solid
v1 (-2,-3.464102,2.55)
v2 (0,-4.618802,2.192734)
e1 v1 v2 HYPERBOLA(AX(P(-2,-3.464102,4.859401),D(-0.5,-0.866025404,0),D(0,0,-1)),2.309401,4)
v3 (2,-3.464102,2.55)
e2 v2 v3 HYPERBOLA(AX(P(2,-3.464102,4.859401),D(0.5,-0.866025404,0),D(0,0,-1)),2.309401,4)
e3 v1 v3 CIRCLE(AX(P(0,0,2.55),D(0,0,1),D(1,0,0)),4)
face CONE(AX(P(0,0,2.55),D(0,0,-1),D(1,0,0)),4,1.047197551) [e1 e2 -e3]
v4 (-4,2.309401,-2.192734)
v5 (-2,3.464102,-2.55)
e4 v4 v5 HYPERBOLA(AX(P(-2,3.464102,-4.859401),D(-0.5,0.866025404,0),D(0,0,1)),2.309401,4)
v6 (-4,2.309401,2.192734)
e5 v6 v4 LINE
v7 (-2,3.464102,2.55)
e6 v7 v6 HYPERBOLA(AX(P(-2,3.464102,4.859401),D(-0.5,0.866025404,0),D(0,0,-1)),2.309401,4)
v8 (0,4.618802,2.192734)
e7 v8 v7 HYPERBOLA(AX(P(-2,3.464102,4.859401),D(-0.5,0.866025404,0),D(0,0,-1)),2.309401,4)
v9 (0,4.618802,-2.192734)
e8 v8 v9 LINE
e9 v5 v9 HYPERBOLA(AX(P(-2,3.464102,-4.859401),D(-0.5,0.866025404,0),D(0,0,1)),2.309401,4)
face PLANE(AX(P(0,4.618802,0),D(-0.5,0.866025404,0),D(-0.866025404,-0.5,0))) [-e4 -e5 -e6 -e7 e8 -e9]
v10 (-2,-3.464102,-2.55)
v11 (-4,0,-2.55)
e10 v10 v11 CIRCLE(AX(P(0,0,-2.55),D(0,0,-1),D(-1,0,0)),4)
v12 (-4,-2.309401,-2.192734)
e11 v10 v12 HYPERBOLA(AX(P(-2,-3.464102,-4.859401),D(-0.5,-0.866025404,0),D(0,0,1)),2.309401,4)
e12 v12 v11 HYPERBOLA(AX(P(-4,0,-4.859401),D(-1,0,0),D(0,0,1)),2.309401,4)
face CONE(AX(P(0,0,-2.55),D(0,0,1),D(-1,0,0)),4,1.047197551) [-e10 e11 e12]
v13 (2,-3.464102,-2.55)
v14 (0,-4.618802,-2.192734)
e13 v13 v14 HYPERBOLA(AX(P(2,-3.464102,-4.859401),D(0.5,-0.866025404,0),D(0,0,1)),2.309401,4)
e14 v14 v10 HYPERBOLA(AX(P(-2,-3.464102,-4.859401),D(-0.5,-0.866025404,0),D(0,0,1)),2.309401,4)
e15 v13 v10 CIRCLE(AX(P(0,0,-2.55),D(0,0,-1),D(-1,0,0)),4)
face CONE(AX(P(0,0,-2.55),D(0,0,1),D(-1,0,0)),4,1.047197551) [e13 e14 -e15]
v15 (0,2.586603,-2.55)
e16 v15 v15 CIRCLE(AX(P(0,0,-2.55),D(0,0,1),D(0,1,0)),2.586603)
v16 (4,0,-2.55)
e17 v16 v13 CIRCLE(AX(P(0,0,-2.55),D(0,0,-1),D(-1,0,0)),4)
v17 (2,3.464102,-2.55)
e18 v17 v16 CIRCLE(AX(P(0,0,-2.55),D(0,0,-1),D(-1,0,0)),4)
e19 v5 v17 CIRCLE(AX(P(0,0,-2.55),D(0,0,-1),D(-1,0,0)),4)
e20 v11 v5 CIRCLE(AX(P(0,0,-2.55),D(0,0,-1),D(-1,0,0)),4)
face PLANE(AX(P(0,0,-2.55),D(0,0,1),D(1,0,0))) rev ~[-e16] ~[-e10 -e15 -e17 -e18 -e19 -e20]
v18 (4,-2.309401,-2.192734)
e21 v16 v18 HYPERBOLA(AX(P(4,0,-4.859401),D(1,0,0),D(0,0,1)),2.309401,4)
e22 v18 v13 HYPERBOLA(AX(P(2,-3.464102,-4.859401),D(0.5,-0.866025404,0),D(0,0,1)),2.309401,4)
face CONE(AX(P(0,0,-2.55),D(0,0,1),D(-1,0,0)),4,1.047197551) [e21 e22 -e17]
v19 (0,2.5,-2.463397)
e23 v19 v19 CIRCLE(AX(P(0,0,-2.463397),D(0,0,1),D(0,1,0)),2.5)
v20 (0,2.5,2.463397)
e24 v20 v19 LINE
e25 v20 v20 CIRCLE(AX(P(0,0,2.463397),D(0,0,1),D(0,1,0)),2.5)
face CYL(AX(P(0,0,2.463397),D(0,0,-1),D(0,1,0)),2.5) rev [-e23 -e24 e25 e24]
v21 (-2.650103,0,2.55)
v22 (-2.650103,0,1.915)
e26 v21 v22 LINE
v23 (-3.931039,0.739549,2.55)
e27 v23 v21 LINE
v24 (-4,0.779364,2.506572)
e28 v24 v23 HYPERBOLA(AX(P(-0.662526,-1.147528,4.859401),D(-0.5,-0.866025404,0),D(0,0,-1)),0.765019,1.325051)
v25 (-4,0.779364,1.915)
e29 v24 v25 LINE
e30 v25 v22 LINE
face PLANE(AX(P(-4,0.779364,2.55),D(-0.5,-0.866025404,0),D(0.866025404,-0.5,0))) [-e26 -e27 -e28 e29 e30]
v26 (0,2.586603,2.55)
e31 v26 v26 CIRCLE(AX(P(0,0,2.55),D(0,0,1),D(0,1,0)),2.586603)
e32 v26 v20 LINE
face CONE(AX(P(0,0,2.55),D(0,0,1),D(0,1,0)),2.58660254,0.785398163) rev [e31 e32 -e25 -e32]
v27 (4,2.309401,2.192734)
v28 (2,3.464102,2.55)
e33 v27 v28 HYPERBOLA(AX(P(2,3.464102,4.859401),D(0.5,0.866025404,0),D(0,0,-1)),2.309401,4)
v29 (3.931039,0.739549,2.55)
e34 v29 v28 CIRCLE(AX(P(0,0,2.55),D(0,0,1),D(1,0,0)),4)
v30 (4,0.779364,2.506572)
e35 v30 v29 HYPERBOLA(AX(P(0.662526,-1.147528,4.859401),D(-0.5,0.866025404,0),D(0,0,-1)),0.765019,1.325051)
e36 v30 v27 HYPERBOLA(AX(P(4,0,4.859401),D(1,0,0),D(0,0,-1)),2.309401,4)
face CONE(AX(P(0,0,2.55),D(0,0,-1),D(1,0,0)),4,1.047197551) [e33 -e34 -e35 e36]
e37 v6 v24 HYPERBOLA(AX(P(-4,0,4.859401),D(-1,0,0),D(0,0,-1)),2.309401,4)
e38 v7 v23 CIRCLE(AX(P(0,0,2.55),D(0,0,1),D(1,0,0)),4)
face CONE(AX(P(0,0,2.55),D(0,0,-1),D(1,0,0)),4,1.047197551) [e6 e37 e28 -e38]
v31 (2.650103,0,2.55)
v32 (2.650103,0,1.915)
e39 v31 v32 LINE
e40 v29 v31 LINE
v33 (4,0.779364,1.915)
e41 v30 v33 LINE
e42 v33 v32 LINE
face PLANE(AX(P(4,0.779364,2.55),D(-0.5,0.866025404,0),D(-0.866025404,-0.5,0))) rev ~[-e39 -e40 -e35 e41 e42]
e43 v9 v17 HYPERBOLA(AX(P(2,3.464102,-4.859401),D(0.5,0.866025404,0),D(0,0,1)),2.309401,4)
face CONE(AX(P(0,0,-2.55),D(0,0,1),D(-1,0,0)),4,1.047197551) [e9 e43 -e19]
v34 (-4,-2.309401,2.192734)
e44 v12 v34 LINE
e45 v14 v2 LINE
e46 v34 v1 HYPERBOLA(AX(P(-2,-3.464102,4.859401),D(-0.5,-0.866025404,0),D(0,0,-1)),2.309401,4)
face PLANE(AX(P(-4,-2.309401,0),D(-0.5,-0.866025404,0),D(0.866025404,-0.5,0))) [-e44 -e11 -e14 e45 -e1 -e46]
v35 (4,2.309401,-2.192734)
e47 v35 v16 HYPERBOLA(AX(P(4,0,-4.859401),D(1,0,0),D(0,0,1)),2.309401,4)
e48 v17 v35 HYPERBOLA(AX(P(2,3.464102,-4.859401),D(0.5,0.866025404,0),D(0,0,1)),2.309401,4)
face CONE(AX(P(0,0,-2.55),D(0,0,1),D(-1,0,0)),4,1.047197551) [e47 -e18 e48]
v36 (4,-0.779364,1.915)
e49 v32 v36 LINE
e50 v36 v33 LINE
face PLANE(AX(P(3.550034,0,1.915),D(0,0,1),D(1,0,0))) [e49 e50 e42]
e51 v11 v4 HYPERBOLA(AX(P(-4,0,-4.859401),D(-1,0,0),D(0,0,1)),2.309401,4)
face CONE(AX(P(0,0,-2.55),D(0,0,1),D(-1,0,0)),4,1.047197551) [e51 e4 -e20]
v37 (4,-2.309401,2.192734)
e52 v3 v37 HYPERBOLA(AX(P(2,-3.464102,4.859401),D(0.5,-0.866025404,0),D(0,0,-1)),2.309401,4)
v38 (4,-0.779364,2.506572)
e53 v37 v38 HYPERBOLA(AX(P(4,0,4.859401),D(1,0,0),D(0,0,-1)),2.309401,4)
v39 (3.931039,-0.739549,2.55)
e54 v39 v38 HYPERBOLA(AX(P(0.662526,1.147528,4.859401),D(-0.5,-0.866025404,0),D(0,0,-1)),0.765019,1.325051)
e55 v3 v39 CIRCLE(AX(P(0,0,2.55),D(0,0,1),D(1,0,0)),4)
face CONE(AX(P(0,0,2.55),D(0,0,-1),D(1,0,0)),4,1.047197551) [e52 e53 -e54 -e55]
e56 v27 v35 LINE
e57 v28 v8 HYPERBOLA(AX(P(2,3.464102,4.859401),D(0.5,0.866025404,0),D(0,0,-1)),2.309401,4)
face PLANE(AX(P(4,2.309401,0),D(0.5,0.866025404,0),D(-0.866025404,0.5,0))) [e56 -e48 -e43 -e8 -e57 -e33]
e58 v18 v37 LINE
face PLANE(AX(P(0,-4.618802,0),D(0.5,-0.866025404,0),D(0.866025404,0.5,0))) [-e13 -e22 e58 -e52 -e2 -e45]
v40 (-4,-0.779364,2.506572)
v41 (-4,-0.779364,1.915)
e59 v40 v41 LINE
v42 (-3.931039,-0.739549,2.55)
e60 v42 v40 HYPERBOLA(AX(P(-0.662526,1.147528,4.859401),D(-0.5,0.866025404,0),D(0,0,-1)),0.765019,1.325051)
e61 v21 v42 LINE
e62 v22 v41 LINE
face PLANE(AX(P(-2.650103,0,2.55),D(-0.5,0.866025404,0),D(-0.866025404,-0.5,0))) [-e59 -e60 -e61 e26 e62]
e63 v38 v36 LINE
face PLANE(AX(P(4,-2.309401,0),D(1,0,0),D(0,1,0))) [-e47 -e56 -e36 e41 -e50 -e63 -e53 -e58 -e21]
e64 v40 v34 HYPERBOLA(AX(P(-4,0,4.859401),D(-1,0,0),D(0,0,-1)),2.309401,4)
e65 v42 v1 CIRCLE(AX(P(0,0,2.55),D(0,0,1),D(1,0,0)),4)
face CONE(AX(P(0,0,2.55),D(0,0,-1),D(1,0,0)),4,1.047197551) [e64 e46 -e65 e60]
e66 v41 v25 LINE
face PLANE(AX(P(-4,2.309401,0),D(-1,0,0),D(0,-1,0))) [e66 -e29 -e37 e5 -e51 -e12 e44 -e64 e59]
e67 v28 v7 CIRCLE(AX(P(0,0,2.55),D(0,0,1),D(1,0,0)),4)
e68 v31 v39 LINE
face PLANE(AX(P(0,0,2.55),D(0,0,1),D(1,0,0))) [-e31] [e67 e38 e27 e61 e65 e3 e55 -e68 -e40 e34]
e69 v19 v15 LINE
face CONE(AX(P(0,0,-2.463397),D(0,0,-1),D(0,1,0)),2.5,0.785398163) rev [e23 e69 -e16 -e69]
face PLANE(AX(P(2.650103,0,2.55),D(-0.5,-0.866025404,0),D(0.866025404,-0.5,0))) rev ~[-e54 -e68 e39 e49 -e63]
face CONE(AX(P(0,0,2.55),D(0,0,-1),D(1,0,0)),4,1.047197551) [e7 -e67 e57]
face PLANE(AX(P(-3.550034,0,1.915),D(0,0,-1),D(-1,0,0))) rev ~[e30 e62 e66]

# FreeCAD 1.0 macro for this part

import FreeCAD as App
import Part
import Sketcher
from FreeCAD import Vector
Q = App.Units.Quantity


def faces_at(feature, points):
    """Names of the faces that lie closest to the given points."""
    faces = feature.Shape.Faces
    near = lambda p: min(range(len(faces)), key=lambda i: faces[i].distToShape(Part.Vertex(*p))[0])
    return sorted({f"Face{near(p) + 1}" for p in points})

doc = App.newDocument("Part")
body = doc.addObject("PartDesign::Body", "Body")

sketch1 = doc.addObject("Sketcher::SketchObject", "Sketch")
body.addObject(sketch1)
sketch1.AttachmentSupport = (doc.XY_Plane, [""])
sketch1.MapMode = "FlatFace"
sketch1.addGeometry([
    Part.LineSegment(Vector(-4, 2.309401, 0), Vector(-4, -2.309401, 0)),
    Part.LineSegment(Vector(-4, -2.309401, 0), Vector(0, -4.618802, 0)),
    Part.LineSegment(Vector(0, -4.618802, 0), Vector(4, -2.309401, 0)),
    Part.LineSegment(Vector(4, -2.309401, 0), Vector(4, 2.309401, 0)),
    Part.LineSegment(Vector(4, 2.309401, 0), Vector(0, 4.618802, 0)),
    Part.LineSegment(Vector(0, 4.618802, 0), Vector(-4, 2.309401, 0)),
], False)
sketch1.addConstraint([
    Sketcher.Constraint("Coincident", 0, 2, 1, 1),
    Sketcher.Constraint("Coincident", 1, 2, 2, 1),
    Sketcher.Constraint("Coincident", 2, 2, 3, 1),
    Sketcher.Constraint("Coincident", 3, 2, 4, 1),
    Sketcher.Constraint("Coincident", 4, 2, 5, 1),
    Sketcher.Constraint("Coincident", 5, 2, 0, 1),
    Sketcher.Constraint("Vertical", 0),
    Sketcher.Constraint("Vertical", 3),
    Sketcher.Constraint("Symmetric", 0, 2, 3, 2, -1, 1),
    Sketcher.Constraint("Symmetric", 1, 2, 4, 2, -1, 1),
    Sketcher.Constraint("PointOnObject", 1, 2, -2),
    Sketcher.Constraint("Parallel", 2, 5),
    Sketcher.Constraint("Horizontal", 0, 2, 2, 2),
    Sketcher.Constraint("Angle", 1, Q("-30 deg")),
    Sketcher.Constraint("DistanceX", 0, 2, -1, 1, Q("4 mm")),
    Sketcher.Constraint("DistanceY", 0, 2, -1, 1, Q("2.309401 mm")),
])
pad1 = doc.addObject("PartDesign::Pad", "Pad")
body.addObject(pad1)
pad1.Profile = sketch1
pad1.Length = 5.1
pad1.Midplane = True
body2 = doc.addObject("PartDesign::Body", "Body001")

sketch2 = doc.addObject("Sketcher::SketchObject", "Sketch001")
body2.addObject(sketch2)
sketch2.AttachmentSupport = (doc.getObject("XY_Plane001"), [""])
sketch2.MapMode = "FlatFace"
sketch2.AttachmentOffset = App.Placement(Vector(0, 0, 2.55), App.Rotation())
sketch2.addGeometry([
    Part.LineSegment(Vector(-21.841, 22.46, 0), Vector(-21.841, -22.46, 0)),
    Part.LineSegment(Vector(-21.841, -22.46, 0), Vector(21.841, -22.46, 0)),
    Part.LineSegment(Vector(21.841, -22.46, 0), Vector(21.841, 22.46, 0)),
    Part.LineSegment(Vector(21.841, 22.46, 0), Vector(-21.841, 22.46, 0)),
    Part.Circle(Vector(0, 0, 0), Vector(0, 0, 1), 4),
], False)
sketch2.addConstraint([
    Sketcher.Constraint("Coincident", 0, 2, 1, 1),
    Sketcher.Constraint("Coincident", 1, 2, 2, 1),
    Sketcher.Constraint("Coincident", 2, 2, 3, 1),
    Sketcher.Constraint("Coincident", 3, 2, 0, 1),
    Sketcher.Constraint("Vertical", 0),
    Sketcher.Constraint("Horizontal", 1),
    Sketcher.Constraint("Vertical", 2),
    Sketcher.Constraint("Horizontal", 3),
    Sketcher.Constraint("Coincident", 4, 3, -1, 1),
    Sketcher.Constraint("Symmetric", 0, 2, 2, 2, -1, 1),
    Sketcher.Constraint("Diameter", 4, Q("8 mm")),
    Sketcher.Constraint("DistanceY", 0, 2, 0, 1, Q("44.92 mm")),
    Sketcher.Constraint("DistanceX", 1, 1, 1, 2, Q("43.682 mm")),
])
pad2 = doc.addObject("PartDesign::Pad", "Pad001")
body2.addObject(pad2)
pad2.Profile = sketch2
pad2.Length = 8.958853
pad2.Reversed = True
doc.recompute()

datumplane = doc.addObject("PartDesign::Plane", "DatumPlane")
body2.addObject(datumplane)
datumplane.AttachmentSupport = (doc.getObject("XY_Plane001"), [""])
datumplane.MapMode = "FlatFace"
datumplane.AttachmentOffset = App.Placement(Vector(0, 0, 2.55), App.Rotation())
draft = doc.addObject("PartDesign::Draft", "Draft")
body2.addObject(draft)
draft.Base = (pad2, faces_at(pad2, [
    (0, -22.46, -1.929),
    (21.841, 0, -1.929),
    (0, 22.46, -1.929),
    (-21.841, 0, -1.929),
    (-4, 0, -1.929),
]))
draft.NeutralPlane = (datumplane, [""])
draft.Angle = 60
draft.Reversed = True
doc.recompute()

boolean = doc.addObject("PartDesign::Boolean", "Boolean")
body.addObject(boolean)
boolean.Type = "Cut"
boolean.addObjects([body2])
body3 = doc.addObject("PartDesign::Body", "Body002")

sketch3 = doc.addObject("Sketcher::SketchObject", "Sketch002")
body3.addObject(sketch3)
sketch3.AttachmentSupport = (doc.getObject("XY_Plane002"), [""])
sketch3.MapMode = "FlatFace"
sketch3.AttachmentOffset = App.Placement(Vector(0, 0, -2.55), App.Rotation())
sketch3.addGeometry([
    Part.LineSegment(Vector(21.841, 22.46, 0), Vector(21.841, -22.46, 0)),
    Part.LineSegment(Vector(21.841, -22.46, 0), Vector(-21.841, -22.46, 0)),
    Part.LineSegment(Vector(-21.841, -22.46, 0), Vector(-21.841, 22.46, 0)),
    Part.LineSegment(Vector(-21.841, 22.46, 0), Vector(21.841, 22.46, 0)),
    Part.Circle(Vector(0, 0, 0), Vector(0, 0, 1), 4),
], False)
sketch3.addConstraint([
    Sketcher.Constraint("Coincident", 0, 2, 1, 1),
    Sketcher.Constraint("Coincident", 1, 2, 2, 1),
    Sketcher.Constraint("Coincident", 2, 2, 3, 1),
    Sketcher.Constraint("Coincident", 3, 2, 0, 1),
    Sketcher.Constraint("Vertical", 0),
    Sketcher.Constraint("Horizontal", 1),
    Sketcher.Constraint("Vertical", 2),
    Sketcher.Constraint("Horizontal", 3),
    Sketcher.Constraint("Coincident", 4, 3, -1, 1),
    Sketcher.Constraint("Symmetric", 0, 2, 2, 2, -1, 1),
    Sketcher.Constraint("Diameter", 4, Q("8 mm")),
    Sketcher.Constraint("DistanceY", 0, 2, 0, 1, Q("44.92 mm")),
    Sketcher.Constraint("DistanceX", 1, 2, 1, 1, Q("43.682 mm")),
])
pad3 = doc.addObject("PartDesign::Pad", "Pad002")
body3.addObject(pad3)
pad3.Profile = sketch3
pad3.Length = 8.958853
doc.recompute()

datumplane2 = doc.addObject("PartDesign::Plane", "DatumPlane001")
body3.addObject(datumplane2)
datumplane2.AttachmentSupport = (doc.getObject("XY_Plane002"), [""])
datumplane2.MapMode = "FlatFace"
datumplane2.AttachmentOffset = App.Placement(Vector(0, 0, -2.55), App.Rotation())
draft2 = doc.addObject("PartDesign::Draft", "Draft001")
body3.addObject(draft2)
draft2.Base = (pad3, faces_at(pad3, [
    (0, -22.46, 1.929),
    (-21.841, 0, 1.929),
    (0, 22.46, 1.929),
    (21.841, 0, 1.929),
    (4, 0, 1.929),
]))
draft2.NeutralPlane = (datumplane2, [""])
draft2.Angle = 60
draft2.Reversed = False
doc.recompute()

boolean2 = doc.addObject("PartDesign::Boolean", "Boolean001")
body.addObject(boolean2)
boolean2.Type = "Cut"
boolean2.addObjects([body3])

sketch4 = doc.addObject("Sketcher::SketchObject", "Sketch003")
body.addObject(sketch4)
sketch4.AttachmentSupport = (doc.YZ_Plane, [""])
sketch4.MapMode = "FlatFace"
sketch4.addGeometry([
    Part.LineSegment(Vector(0, 2.55, 0), Vector(0, -2.55, 0)),
    Part.LineSegment(Vector(0, -2.55, 0), Vector(2.586603, -2.55, 0)),
    Part.LineSegment(Vector(2.586603, -2.55, 0), Vector(2.5, -2.463397, 0)),
    Part.LineSegment(Vector(2.5, -2.463397, 0), Vector(2.5, 2.463397, 0)),
    Part.LineSegment(Vector(2.5, 2.463397, 0), Vector(2.586603, 2.55, 0)),
    Part.LineSegment(Vector(2.586603, 2.55, 0), Vector(0, 2.55, 0)),
], False)
sketch4.addConstraint([
    Sketcher.Constraint("Coincident", 0, 2, 1, 1),
    Sketcher.Constraint("Coincident", 1, 2, 2, 1),
    Sketcher.Constraint("Coincident", 2, 2, 3, 1),
    Sketcher.Constraint("Coincident", 3, 2, 4, 1),
    Sketcher.Constraint("Coincident", 4, 2, 5, 1),
    Sketcher.Constraint("Coincident", 5, 2, 0, 1),
    Sketcher.Constraint("Vertical", 0),
    Sketcher.Constraint("Horizontal", 1),
    Sketcher.Constraint("Vertical", 3),
    Sketcher.Constraint("Horizontal", 5),
    Sketcher.Constraint("Symmetric", 0, 2, 5, 2, -1, 1),
    Sketcher.Constraint("Perpendicular", 2, 4),
    Sketcher.Constraint("Vertical", 1, 2, 4, 2),
    Sketcher.Constraint("Equal", 2, 4),
    Sketcher.Constraint("DistanceY", 0, 2, 0, 1, Q("5.1 mm")),
    Sketcher.Constraint("DistanceX", -1, 1, 2, 2, Q("2.5 mm")),
    Sketcher.Constraint("DistanceX", 1, 1, 1, 2, Q("2.586603 mm")),
])
groove = doc.addObject("PartDesign::Groove", "Groove")
body.addObject(groove)
groove.Profile = sketch4
groove.ReferenceAxis = (sketch4, ["V_Axis"])
groove.Angle = 360

sketch5 = doc.addObject("Sketcher::SketchObject", "Sketch004")
body.addObject(sketch5)
sketch5.AttachmentSupport = (doc.XY_Plane, [""])
sketch5.MapMode = "FlatFace"
sketch5.AttachmentOffset = App.Placement(Vector(0, 0, 2.55), App.Rotation())
sketch5.addGeometry([
    Part.LineSegment(Vector(-4, -0.779364, 0), Vector(-2.650103, 0, 0)),
    Part.LineSegment(Vector(-2.650103, 0, 0), Vector(-4, 0.779364, 0)),
    Part.LineSegment(Vector(-4, 0.779364, 0), Vector(-4, -0.779364, 0)),
    Part.LineSegment(Vector(4, -0.779364, 0), Vector(4, 0.779364, 0)),
    Part.LineSegment(Vector(4, 0.779364, 0), Vector(2.650103, 0, 0)),
    Part.LineSegment(Vector(2.650103, 0, 0), Vector(4, -0.779364, 0)),
], False)
sketch5.addConstraint([
    Sketcher.Constraint("Coincident", 0, 2, 1, 1),
    Sketcher.Constraint("Coincident", 1, 2, 2, 1),
    Sketcher.Constraint("Coincident", 2, 2, 0, 1),
    Sketcher.Constraint("Coincident", 3, 2, 4, 1),
    Sketcher.Constraint("Coincident", 4, 2, 5, 1),
    Sketcher.Constraint("Coincident", 5, 2, 3, 1),
    Sketcher.Constraint("Vertical", 2),
    Sketcher.Constraint("Vertical", 3),
    Sketcher.Constraint("Symmetric", 2, 2, 3, 2, -1, 1),
    Sketcher.Constraint("Symmetric", 0, 2, 4, 2, -1, 1),
    Sketcher.Constraint("PointOnObject", 0, 2, -1),
    Sketcher.Constraint("Parallel", 1, 5),
    Sketcher.Constraint("Horizontal", 1, 2, 3, 2),
    Sketcher.Constraint("Angle", 0, Q("30 deg")),
    Sketcher.Constraint("DistanceX", 1, 2, -1, 1, Q("4 mm")),
    Sketcher.Constraint("DistanceY", 2, 2, 2, 1, Q("1.558727 mm")),
])
pocket1 = doc.addObject("PartDesign::Pocket", "Pocket")
body.addObject(pocket1)
pocket1.Profile = sketch5
pocket1.Length = 0.635

doc.recompute()
